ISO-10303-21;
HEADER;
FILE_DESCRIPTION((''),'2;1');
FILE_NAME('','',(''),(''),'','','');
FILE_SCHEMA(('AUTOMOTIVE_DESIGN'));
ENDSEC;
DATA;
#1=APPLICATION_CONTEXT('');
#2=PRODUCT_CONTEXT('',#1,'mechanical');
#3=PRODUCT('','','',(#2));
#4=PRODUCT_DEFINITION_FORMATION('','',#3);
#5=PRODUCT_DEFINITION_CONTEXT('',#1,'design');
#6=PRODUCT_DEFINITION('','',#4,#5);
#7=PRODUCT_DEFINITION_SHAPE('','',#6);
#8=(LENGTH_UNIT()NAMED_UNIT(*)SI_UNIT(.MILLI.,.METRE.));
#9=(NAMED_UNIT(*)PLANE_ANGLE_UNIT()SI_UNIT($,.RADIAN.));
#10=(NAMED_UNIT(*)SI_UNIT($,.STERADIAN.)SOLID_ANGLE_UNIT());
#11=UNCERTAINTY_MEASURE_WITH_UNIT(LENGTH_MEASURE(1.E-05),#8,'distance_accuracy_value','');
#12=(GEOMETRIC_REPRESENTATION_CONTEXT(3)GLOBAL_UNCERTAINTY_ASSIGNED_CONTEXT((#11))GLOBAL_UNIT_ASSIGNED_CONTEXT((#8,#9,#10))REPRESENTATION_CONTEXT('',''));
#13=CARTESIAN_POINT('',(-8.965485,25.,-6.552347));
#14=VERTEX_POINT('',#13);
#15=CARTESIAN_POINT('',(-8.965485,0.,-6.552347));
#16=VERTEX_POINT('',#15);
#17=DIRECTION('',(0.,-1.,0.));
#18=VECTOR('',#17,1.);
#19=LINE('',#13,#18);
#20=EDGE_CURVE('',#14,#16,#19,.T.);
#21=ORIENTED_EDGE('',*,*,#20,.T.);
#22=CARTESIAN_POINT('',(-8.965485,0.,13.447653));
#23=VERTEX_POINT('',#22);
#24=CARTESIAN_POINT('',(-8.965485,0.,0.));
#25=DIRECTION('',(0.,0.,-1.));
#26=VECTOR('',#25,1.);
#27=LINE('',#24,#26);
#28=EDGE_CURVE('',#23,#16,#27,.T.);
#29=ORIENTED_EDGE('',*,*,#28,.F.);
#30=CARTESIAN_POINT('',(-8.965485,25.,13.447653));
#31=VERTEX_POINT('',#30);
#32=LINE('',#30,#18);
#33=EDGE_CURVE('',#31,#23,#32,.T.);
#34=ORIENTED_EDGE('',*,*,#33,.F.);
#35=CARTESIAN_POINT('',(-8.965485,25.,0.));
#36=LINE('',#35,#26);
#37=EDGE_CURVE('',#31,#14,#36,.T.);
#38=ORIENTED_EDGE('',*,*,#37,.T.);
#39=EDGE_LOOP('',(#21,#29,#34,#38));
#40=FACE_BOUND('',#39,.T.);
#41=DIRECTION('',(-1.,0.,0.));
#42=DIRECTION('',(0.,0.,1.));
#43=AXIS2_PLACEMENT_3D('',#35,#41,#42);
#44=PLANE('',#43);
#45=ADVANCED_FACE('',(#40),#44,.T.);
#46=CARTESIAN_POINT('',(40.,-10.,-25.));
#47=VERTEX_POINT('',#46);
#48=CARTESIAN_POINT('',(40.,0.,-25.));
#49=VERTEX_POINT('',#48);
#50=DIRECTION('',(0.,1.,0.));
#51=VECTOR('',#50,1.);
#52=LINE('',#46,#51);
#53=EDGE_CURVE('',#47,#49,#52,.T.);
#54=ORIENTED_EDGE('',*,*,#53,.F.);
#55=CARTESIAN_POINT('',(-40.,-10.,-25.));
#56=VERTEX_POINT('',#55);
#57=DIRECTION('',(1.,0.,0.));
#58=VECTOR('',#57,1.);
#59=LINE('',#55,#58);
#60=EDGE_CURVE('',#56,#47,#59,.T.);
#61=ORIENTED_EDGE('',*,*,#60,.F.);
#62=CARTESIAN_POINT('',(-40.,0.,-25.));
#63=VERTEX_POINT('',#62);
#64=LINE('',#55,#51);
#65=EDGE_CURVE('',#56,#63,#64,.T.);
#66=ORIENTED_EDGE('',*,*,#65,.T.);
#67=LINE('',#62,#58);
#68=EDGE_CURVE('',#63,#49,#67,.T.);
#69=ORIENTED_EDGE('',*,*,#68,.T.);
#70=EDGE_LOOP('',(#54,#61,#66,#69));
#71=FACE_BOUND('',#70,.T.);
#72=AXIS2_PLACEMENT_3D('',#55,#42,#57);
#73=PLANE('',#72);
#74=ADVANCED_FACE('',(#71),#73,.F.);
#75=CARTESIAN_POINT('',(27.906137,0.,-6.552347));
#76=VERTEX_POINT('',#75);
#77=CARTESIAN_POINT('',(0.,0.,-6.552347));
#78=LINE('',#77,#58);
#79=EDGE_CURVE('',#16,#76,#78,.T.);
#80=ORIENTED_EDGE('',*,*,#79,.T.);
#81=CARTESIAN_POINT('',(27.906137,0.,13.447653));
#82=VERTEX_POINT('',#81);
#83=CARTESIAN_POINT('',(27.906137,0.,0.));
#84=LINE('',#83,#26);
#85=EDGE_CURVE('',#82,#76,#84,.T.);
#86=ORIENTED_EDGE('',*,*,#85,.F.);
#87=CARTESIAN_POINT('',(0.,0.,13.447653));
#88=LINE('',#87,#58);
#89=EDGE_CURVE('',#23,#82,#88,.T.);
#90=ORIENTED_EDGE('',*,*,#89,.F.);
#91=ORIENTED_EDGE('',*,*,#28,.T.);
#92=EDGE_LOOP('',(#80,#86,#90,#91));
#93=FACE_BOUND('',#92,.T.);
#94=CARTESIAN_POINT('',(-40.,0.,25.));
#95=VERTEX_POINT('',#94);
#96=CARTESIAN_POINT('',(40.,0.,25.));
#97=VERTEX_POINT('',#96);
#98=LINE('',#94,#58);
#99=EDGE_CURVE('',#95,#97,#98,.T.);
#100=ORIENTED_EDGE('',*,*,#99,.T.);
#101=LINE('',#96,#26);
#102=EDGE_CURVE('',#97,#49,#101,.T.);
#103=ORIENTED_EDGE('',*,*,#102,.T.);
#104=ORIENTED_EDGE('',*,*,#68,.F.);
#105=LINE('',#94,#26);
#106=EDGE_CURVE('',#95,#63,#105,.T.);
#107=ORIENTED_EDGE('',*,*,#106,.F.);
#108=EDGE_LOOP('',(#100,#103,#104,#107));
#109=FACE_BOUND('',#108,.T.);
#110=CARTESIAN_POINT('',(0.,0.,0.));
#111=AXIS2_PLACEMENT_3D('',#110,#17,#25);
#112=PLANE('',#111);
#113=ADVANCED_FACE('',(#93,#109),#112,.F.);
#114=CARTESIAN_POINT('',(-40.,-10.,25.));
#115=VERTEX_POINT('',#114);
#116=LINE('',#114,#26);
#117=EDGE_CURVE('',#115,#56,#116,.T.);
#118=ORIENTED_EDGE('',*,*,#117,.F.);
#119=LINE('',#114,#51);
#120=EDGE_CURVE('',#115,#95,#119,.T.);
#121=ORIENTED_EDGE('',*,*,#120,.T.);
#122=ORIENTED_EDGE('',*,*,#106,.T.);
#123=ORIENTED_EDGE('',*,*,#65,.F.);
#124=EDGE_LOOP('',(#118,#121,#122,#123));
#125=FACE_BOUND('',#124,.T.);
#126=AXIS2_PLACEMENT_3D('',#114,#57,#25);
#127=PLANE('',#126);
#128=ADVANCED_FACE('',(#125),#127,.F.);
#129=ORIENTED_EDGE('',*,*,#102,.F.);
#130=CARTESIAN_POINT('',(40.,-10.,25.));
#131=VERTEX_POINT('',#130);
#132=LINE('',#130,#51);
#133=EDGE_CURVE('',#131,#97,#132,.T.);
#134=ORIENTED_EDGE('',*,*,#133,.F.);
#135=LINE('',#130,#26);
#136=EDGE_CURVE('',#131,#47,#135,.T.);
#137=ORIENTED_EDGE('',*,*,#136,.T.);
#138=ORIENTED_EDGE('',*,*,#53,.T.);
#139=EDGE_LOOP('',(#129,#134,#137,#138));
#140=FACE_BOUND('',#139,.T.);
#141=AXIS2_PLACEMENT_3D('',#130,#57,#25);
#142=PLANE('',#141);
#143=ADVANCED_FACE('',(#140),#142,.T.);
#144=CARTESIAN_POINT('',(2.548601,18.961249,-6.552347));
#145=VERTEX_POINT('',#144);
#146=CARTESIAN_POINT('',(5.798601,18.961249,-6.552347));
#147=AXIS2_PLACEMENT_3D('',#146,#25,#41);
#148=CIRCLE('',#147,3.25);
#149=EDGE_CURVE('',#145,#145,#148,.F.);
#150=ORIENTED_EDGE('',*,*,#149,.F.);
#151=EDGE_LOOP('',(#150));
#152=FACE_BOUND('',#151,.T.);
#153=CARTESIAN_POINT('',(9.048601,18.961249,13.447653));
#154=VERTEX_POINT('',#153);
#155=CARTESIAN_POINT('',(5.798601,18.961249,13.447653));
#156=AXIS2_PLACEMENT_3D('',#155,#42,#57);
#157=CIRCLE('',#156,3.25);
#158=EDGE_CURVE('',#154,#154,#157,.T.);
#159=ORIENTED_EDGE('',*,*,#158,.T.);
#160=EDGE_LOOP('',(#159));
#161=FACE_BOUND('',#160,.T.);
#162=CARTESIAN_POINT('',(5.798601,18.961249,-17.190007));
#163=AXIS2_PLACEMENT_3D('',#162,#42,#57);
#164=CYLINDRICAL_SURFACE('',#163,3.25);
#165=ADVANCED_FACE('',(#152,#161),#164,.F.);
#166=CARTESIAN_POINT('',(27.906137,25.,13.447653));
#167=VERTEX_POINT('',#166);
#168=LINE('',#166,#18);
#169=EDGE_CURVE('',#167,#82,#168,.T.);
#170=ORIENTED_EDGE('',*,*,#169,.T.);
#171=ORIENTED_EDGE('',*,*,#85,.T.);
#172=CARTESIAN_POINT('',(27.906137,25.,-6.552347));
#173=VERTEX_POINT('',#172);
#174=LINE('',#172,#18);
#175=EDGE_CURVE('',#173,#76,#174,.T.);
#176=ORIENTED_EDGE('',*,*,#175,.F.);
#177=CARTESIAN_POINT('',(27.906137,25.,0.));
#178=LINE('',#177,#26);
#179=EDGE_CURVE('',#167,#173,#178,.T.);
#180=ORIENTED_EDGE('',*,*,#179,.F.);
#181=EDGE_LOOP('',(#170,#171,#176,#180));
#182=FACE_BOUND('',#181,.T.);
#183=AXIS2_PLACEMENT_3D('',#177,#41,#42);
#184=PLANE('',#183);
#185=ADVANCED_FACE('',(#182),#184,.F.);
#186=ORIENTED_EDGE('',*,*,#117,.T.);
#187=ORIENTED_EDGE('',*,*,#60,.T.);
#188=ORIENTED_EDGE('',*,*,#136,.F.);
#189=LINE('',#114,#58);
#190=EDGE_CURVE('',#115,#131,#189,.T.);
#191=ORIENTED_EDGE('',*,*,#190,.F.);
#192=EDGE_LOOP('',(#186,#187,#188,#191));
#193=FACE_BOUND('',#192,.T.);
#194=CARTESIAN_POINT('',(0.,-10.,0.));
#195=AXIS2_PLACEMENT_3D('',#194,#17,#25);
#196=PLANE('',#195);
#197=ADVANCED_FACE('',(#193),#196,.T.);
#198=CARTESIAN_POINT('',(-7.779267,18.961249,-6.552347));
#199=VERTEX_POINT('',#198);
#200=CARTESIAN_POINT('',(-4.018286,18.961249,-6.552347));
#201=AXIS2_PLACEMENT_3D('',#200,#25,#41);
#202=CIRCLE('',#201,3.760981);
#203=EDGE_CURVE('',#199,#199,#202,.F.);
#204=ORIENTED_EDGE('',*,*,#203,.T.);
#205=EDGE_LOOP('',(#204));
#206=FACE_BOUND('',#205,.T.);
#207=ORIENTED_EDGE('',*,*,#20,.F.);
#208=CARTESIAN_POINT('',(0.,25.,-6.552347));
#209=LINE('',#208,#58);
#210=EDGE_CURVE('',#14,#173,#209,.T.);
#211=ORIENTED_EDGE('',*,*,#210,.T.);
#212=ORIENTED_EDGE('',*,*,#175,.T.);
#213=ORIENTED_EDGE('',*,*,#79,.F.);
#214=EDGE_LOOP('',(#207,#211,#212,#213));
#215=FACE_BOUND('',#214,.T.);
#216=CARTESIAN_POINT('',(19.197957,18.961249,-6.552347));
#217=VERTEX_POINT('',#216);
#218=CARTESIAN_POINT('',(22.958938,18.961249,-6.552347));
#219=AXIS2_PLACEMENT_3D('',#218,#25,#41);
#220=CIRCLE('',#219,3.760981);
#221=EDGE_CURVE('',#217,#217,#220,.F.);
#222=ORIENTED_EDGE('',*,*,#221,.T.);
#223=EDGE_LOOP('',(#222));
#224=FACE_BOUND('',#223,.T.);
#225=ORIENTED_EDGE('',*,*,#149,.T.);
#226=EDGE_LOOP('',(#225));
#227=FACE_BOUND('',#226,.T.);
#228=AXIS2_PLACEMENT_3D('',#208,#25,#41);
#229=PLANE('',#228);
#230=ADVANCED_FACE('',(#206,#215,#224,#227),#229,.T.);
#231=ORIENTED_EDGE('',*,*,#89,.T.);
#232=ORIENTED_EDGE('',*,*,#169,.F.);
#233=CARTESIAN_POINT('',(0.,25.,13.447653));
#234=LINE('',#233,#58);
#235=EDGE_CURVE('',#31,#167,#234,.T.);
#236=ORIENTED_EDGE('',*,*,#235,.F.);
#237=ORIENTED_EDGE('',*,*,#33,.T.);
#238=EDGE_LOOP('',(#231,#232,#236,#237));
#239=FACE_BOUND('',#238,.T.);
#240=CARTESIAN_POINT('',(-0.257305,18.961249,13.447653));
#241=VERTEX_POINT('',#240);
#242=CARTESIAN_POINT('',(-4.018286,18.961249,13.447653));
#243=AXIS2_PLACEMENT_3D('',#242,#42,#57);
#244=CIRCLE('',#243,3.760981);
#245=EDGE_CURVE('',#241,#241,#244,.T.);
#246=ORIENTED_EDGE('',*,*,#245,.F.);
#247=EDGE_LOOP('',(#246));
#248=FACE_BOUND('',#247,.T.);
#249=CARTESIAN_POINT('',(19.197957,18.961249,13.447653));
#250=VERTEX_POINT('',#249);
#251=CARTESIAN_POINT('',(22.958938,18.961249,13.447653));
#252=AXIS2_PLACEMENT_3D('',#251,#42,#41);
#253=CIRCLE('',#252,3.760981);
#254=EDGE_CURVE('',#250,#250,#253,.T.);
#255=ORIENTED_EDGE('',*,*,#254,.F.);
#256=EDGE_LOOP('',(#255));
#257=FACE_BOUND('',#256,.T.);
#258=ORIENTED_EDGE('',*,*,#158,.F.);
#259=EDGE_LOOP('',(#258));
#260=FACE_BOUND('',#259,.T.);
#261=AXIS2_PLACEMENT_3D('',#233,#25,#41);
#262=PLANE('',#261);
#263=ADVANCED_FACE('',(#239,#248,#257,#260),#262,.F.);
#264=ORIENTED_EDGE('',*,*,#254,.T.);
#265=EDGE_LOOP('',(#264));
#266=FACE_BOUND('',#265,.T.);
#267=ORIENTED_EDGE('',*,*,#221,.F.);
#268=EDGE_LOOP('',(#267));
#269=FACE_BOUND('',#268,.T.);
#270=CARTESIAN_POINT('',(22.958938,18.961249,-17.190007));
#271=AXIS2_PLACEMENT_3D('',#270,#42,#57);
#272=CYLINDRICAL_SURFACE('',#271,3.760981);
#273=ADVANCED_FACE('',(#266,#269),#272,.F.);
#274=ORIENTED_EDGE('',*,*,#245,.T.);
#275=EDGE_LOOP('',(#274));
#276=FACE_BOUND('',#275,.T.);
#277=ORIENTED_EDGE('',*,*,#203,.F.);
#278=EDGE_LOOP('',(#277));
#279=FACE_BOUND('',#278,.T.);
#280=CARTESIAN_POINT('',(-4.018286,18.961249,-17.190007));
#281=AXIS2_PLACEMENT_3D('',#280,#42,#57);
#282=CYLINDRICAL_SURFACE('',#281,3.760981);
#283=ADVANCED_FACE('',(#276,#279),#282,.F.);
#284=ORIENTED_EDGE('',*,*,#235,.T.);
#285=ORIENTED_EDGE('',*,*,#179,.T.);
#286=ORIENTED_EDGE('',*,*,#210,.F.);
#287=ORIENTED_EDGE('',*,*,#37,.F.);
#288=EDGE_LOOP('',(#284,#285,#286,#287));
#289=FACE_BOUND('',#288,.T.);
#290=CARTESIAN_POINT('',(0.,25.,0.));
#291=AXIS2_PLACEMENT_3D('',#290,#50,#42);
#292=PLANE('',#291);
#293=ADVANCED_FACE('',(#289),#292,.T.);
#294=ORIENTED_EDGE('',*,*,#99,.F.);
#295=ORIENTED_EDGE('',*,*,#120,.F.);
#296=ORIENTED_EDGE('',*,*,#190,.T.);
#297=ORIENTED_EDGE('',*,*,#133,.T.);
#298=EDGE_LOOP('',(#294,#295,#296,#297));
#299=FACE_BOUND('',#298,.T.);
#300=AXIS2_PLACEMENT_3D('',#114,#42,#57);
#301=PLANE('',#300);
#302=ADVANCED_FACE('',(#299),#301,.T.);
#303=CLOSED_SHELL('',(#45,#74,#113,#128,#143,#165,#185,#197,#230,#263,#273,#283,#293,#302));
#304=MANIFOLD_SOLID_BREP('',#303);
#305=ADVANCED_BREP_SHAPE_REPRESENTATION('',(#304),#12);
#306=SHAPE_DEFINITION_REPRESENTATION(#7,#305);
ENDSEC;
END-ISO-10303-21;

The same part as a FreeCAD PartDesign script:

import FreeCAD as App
import Part
import Sketcher
Q = App.Units.Quantity

doc = App.newDocument("Part")
body = doc.addObject("PartDesign::Body", "Body")

sketch1 = doc.addObject("Sketcher::SketchObject", "Sketch")
body.addObject(sketch1)
sketch1.AttachmentSupport = (doc.XZ_Plane, [""])
sketch1.MapMode = "FlatFace"
sketch1.addGeometry(Part.LineSegment(App.Vector(-40, -25, 0), App.Vector(-40, 25, 0)), False)
sketch1.addGeometry(Part.LineSegment(App.Vector(-40, 25, 0), App.Vector(40, 25, 0)), False)
sketch1.addGeometry(Part.LineSegment(App.Vector(40, 25, 0), App.Vector(40, -25, 0)), False)
sketch1.addGeometry(Part.LineSegment(App.Vector(40, -25, 0), App.Vector(-40, -25, 0)), False)
sketch1.addConstraint(Sketcher.Constraint("Coincident", 0, 2, 1, 1))
sketch1.addConstraint(Sketcher.Constraint("Coincident", 1, 2, 2, 1))
sketch1.addConstraint(Sketcher.Constraint("Coincident", 2, 2, 3, 1))
sketch1.addConstraint(Sketcher.Constraint("Coincident", 3, 2, 0, 1))
sketch1.addConstraint(Sketcher.Constraint("Vertical", 0))
sketch1.addConstraint(Sketcher.Constraint("Horizontal", 1))
sketch1.addConstraint(Sketcher.Constraint("Vertical", 2))
sketch1.addConstraint(Sketcher.Constraint("Horizontal", 3))
sketch1.addConstraint(Sketcher.Constraint("Symmetric", 0, 2, 2, 2, -1, 1))
sketch1.addConstraint(Sketcher.Constraint("DistanceX", 1, 1, 1, 2, Q("80 mm")))
sketch1.addConstraint(Sketcher.Constraint("DistanceY", 0, 1, 0, 2, Q("50 mm")))
pad1 = doc.addObject("PartDesign::Pad", "Pad")
body.addObject(pad1)
pad1.Profile = sketch1
pad1.Length = 10

sketch2 = doc.addObject("Sketcher::SketchObject", "Sketch001")
body.addObject(sketch2)
sketch2.AttachmentSupport = (doc.XZ_Plane, [""])
sketch2.MapMode = "FlatFace"
sketch2.addGeometry(Part.LineSegment(App.Vector(-8.965485, -6.552347, 0), App.Vector(-8.965485, 13.447653, 0)), False)
sketch2.addGeometry(Part.LineSegment(App.Vector(-8.965485, 13.447653, 0), App.Vector(27.906137, 13.447653, 0)), False)
sketch2.addGeometry(Part.LineSegment(App.Vector(27.906137, 13.447653, 0), App.Vector(27.906137, -6.552347, 0)), False)
sketch2.addGeometry(Part.LineSegment(App.Vector(27.906137, -6.552347, 0), App.Vector(-8.965485, -6.552347, 0)), False)
sketch2.addConstraint(Sketcher.Constraint("Coincident", 0, 2, 1, 1))
sketch2.addConstraint(Sketcher.Constraint("Coincident", 1, 2, 2, 1))
sketch2.addConstraint(Sketcher.Constraint("Coincident", 2, 2, 3, 1))
sketch2.addConstraint(Sketcher.Constraint("Coincident", 3, 2, 0, 1))
sketch2.addConstraint(Sketcher.Constraint("Vertical", 0))
sketch2.addConstraint(Sketcher.Constraint("Horizontal", 1))
sketch2.addConstraint(Sketcher.Constraint("Vertical", 2))
sketch2.addConstraint(Sketcher.Constraint("Horizontal", 3))
sketch2.addConstraint(Sketcher.Constraint("DistanceY", 0, 1, 0, 2, Q("20 mm")))
sketch2.addConstraint(Sketcher.Constraint("DistanceX", 1, 1, 1, 2, Q("36.871622 mm")))
sketch2.addConstraint(Sketcher.Constraint("DistanceX", 0, 2, -1, 1, Q("8.965485 mm")))
sketch2.addConstraint(Sketcher.Constraint("DistanceY", -1, 1, 0, 2, Q("13.447653 mm")))
pad2 = doc.addObject("PartDesign::Pad", "Pad001")
body.addObject(pad2)
pad2.Profile = sketch2
pad2.Length = 25
pad2.Reversed = True

sketch3 = doc.addObject("Sketcher::SketchObject", "Sketch002")
body.addObject(sketch3)
sketch3.AttachmentSupport = (doc.XY_Plane, [""])
sketch3.MapMode = "FlatFace"
sketch3.AttachmentOffset = App.Placement(App.Vector(0, 0, 13.447653), App.Rotation())
sketch3.addGeometry(Part.Circle(App.Vector(-4.018286, 18.961249, 0), App.Vector(0, 0, 1), 3.760981), False)
sketch3.addGeometry(Part.Circle(App.Vector(22.958938, 18.961249, 0), App.Vector(0, 0, 1), 3.760981), False)
sketch3.addGeometry(Part.Circle(App.Vector(5.798601, 18.961249, 0), App.Vector(0, 0, 1), 3.25), False)
sketch3.addConstraint(Sketcher.Constraint("Equal", 0, 1))
sketch3.addConstraint(Sketcher.Constraint("Horizontal", 0, 3, 1, 3))
sketch3.addConstraint(Sketcher.Constraint("Horizontal", 1, 3, 2, 3))
sketch3.addConstraint(Sketcher.Constraint("Diameter", 2, Q("6.5 mm")))
sketch3.addConstraint(Sketcher.Constraint("Diameter", 0, Q("7.521962 mm")))
sketch3.addConstraint(Sketcher.Constraint("DistanceX", -1, 1, 2, 3, Q("5.798601 mm")))
sketch3.addConstraint(Sketcher.Constraint("DistanceY", -1, 1, 0, 3, Q("18.961249 mm")))
sketch3.addConstraint(Sketcher.Constraint("DistanceX", -1, 1, 1, 3, Q("22.958938 mm")))
sketch3.addConstraint(Sketcher.Constraint("DistanceX", 0, 3, -1, 1, Q("4.018286 mm")))
pocket1 = doc.addObject("PartDesign::Pocket", "Pocket")
body.addObject(pocket1)
pocket1.Profile = sketch3
pocket1.Length = 20

doc.recompute()
